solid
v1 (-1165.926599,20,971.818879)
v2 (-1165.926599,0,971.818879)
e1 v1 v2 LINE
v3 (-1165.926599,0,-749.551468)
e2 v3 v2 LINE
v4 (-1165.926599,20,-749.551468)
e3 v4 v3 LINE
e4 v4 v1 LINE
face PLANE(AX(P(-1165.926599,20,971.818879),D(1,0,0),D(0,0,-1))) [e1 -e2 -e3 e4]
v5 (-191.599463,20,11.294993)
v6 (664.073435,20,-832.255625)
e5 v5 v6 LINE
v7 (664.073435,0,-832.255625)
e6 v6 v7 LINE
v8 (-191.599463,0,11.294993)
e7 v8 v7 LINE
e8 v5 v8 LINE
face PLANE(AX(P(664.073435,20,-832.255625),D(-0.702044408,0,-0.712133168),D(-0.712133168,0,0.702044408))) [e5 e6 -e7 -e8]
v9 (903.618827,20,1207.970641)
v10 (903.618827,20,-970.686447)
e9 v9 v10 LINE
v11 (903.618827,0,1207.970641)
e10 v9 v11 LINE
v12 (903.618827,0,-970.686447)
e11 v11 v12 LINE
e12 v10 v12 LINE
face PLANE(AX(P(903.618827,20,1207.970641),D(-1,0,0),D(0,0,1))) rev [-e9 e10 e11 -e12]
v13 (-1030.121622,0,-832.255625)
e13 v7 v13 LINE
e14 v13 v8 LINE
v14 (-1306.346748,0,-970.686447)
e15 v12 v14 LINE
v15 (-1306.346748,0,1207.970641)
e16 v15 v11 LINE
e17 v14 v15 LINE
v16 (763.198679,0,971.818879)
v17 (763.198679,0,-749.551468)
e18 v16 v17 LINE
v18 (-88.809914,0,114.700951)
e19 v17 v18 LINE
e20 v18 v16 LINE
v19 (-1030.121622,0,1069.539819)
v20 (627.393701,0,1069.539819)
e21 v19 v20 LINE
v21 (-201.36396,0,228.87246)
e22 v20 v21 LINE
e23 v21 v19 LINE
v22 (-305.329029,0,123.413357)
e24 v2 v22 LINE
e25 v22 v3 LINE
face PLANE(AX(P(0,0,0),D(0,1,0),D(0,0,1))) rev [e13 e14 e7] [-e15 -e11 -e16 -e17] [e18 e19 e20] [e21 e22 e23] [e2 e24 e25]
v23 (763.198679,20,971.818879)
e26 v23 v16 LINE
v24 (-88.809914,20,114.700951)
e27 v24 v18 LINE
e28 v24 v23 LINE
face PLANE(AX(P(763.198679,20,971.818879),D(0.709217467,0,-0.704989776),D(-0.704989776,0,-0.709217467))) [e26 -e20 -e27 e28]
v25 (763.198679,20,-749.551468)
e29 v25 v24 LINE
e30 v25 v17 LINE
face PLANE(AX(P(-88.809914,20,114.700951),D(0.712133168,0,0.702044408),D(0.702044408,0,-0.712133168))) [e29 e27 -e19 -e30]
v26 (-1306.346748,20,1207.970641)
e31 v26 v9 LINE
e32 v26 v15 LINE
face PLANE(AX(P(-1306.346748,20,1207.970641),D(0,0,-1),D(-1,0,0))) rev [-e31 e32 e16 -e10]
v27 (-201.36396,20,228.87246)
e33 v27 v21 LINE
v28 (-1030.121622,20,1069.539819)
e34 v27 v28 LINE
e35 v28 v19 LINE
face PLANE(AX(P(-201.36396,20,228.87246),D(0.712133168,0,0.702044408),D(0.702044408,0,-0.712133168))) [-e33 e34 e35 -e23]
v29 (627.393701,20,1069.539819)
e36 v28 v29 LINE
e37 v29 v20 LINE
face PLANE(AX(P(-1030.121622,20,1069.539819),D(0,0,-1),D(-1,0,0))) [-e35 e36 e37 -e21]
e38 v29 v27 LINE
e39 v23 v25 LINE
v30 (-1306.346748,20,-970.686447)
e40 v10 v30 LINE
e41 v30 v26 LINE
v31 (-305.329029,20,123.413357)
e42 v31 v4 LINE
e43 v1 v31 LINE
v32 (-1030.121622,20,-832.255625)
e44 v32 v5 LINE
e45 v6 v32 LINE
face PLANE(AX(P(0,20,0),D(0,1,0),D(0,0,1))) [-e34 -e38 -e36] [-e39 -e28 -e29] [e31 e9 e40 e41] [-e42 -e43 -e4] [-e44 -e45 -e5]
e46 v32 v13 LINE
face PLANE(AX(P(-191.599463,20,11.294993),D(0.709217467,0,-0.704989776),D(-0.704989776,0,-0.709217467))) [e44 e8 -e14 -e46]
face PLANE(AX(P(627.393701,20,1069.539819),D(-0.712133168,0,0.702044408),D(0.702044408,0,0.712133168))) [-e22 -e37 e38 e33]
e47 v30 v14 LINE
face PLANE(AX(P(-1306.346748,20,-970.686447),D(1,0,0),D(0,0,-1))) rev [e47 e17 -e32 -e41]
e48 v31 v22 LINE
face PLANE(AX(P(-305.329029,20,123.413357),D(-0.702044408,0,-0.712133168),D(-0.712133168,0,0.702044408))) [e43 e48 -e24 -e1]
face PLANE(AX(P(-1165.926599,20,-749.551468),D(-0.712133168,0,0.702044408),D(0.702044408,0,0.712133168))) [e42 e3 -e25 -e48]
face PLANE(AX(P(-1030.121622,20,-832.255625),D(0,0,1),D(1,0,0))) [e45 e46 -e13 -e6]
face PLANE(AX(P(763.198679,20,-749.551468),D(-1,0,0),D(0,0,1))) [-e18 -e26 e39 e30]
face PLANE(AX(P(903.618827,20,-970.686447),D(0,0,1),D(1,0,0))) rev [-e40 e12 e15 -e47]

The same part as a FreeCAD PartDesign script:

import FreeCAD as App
import Part
import Sketcher
from FreeCAD import Vector

doc = App.newDocument("Part")
body = doc.addObject("PartDesign::Body", "Body")

# Sketch on XZ plane
sketch1 = body.newObject("Sketcher::SketchObject", "Sketch")
sketch1.AttachmentSupport = (doc.getObject("XZ_Plane"), [""])
sketch1.MapMode = "FlatFace"
sketch1.addGeometry(Part.LineSegment(Vector(-1306, -971, 0), Vector(-1306, 1208, 0)), False)
sketch1.addGeometry(Part.LineSegment(Vector(-1306, 1208, 0), Vector(904, 1208, 0)), False)
sketch1.addGeometry(Part.LineSegment(Vector(904, 1208, 0), Vector(904, -971, 0)), False)
sketch1.addGeometry(Part.LineSegment(Vector(904, -971, 0), Vector(-1306, -971, 0)), False)
sketch1.addGeometry(Part.LineSegment(Vector(-1030, 1070, 0), Vector(-201, 229, 0)), False)
sketch1.addGeometry(Part.LineSegment(Vector(-201, 229, 0), Vector(627, 1070, 0)), False)
sketch1.addGeometry(Part.LineSegment(Vector(627, 1070, 0), Vector(-1030, 1070, 0)), False)
sketch1.addGeometry(Part.LineSegment(Vector(-1166, 972, 0), Vector(-1166, -750, 0)), False)
sketch1.addGeometry(Part.LineSegment(Vector(-1166, -750, 0), Vector(-305, 123, 0)), False)
sketch1.addGeometry(Part.LineSegment(Vector(-305, 123, 0), Vector(-1166, 972, 0)), False)
sketch1.addGeometry(Part.LineSegment(Vector(763, 972, 0), Vector(-89, 115, 0)), False)
sketch1.addGeometry(Part.LineSegment(Vector(-89, 115, 0), Vector(763, -750, 0)), False)
sketch1.addGeometry(Part.LineSegment(Vector(763, -750, 0), Vector(763, 972, 0)), False)
sketch1.addGeometry(Part.LineSegment(Vector(-192, 11, 0), Vector(-1030, -832, 0)), False)
sketch1.addGeometry(Part.LineSegment(Vector(-1030, -832, 0), Vector(664, -832, 0)), False)
sketch1.addGeometry(Part.LineSegment(Vector(664, -832, 0), Vector(-192, 11, 0)), False)
sketch1.addConstraint(Sketcher.Constraint("Coincident", 0, 2, 1, 1))
sketch1.addConstraint(Sketcher.Constraint("Coincident", 1, 2, 2, 1))
sketch1.addConstraint(Sketcher.Constraint("Coincident", 2, 2, 3, 1))
sketch1.addConstraint(Sketcher.Constraint("Coincident", 3, 2, 0, 1))
sketch1.addConstraint(Sketcher.Constraint("Coincident", 4, 2, 5, 1))
sketch1.addConstraint(Sketcher.Constraint("Coincident", 5, 2, 6, 1))
sketch1.addConstraint(Sketcher.Constraint("Coincident", 6, 2, 4, 1))
sketch1.addConstraint(Sketcher.Constraint("Coincident", 7, 2, 8, 1))
sketch1.addConstraint(Sketcher.Constraint("Coincident", 8, 2, 9, 1))
sketch1.addConstraint(Sketcher.Constraint("Coincident", 9, 2, 7, 1))
sketch1.addConstraint(Sketcher.Constraint("Coincident", 10, 2, 11, 1))
sketch1.addConstraint(Sketcher.Constraint("Coincident", 11, 2, 12, 1))
sketch1.addConstraint(Sketcher.Constraint("Coincident", 12, 2, 10, 1))
sketch1.addConstraint(Sketcher.Constraint("Coincident", 13, 2, 14, 1))
sketch1.addConstraint(Sketcher.Constraint("Coincident", 14, 2, 15, 1))
sketch1.addConstraint(Sketcher.Constraint("Coincident", 15, 2, 13, 1))
sketch1.addConstraint(Sketcher.Constraint("Vertical", 0))
sketch1.addConstraint(Sketcher.Constraint("Horizontal", 1))
sketch1.addConstraint(Sketcher.Constraint("Vertical", 2))
sketch1.addConstraint(Sketcher.Constraint("Horizontal", 3))
sketch1.addConstraint(Sketcher.Constraint("Horizontal", 6))
sketch1.addConstraint(Sketcher.Constraint("Vertical", 7))
sketch1.addConstraint(Sketcher.Constraint("Vertical", 12))
sketch1.addConstraint(Sketcher.Constraint("Horizontal", 14))
sketch1.addConstraint(Sketcher.Constraint("Parallel", 5, 8))
sketch1.addConstraint(Sketcher.Constraint("Perpendicular", 8, 9))
sketch1.addConstraint(Sketcher.Constraint("Parallel", 4, 11))
sketch1.addConstraint(Sketcher.Constraint("Parallel", 10, 13))
sketch1.addConstraint(Sketcher.Constraint("Parallel", 9, 15))
sketch1.addConstraint(Sketcher.Constraint("Horizontal", 7, 2, 11, 2))
sketch1.addConstraint(Sketcher.Constraint("Horizontal", 9, 2, 12, 2))
sketch1.addConstraint(Sketcher.Constraint("Vertical", 6, 2, 13, 2))
sketch1.addConstraint(Sketcher.Constraint("Equal", 4, 5))
sketch1.addConstraint(Sketcher.Constraint("DistanceY", 0, 1, 0, 2, 2178.657088))
sketch1.addConstraint(Sketcher.Constraint("DistanceX", -1, 1, 5, 2, 627.393701))
sketch1.addConstraint(Sketcher.Constraint("DistanceX", 7, 2, -1, 1, 1165.926599))
sketch1.addConstraint(Sketcher.Constraint("DistanceX", 15, 2, 14, 2, 855.672898))
sketch1.addConstraint(Sketcher.Constraint("Distance", 4, 1180.491792))
sketch1.addConstraint(Sketcher.Constraint("Distance", 8, 1225.844918))
sketch1.addConstraint(Sketcher.Constraint("Distance", 11, 1213.610682))
sketch1.addConstraint(Sketcher.Constraint("Distance", 13, 1189.410381))
sketch1.addConstraint(Sketcher.Constraint("DistanceX", 1, 1, 1, 2, 2209.965574))
sketch1.addConstraint(Sketcher.Constraint("DistanceY", -1, 1, 0, 2, 1207.970641))
sketch1.addConstraint(Sketcher.Constraint("DistanceY", -1, 1, 4, 2, 228.87246))
sketch1.addConstraint(Sketcher.Constraint("DistanceY", 7, 2, -1, 1, 749.551468))
sketch1.addConstraint(Sketcher.Constraint("DistanceX", -1, 1, 11, 2, 763.198679))
sketch1.addConstraint(Sketcher.Constraint("DistanceX", 0, 2, 5, 2, 1933.740449))
sketch1.addConstraint(Sketcher.Constraint("DistanceY", 13, 2, 8, 2, 955.668981))
pad1 = body.newObject("PartDesign::Pad", "Pad")
pad1.Profile = sketch1
pad1.Length = 20
pad1.Reversed = True

doc.recompute()
